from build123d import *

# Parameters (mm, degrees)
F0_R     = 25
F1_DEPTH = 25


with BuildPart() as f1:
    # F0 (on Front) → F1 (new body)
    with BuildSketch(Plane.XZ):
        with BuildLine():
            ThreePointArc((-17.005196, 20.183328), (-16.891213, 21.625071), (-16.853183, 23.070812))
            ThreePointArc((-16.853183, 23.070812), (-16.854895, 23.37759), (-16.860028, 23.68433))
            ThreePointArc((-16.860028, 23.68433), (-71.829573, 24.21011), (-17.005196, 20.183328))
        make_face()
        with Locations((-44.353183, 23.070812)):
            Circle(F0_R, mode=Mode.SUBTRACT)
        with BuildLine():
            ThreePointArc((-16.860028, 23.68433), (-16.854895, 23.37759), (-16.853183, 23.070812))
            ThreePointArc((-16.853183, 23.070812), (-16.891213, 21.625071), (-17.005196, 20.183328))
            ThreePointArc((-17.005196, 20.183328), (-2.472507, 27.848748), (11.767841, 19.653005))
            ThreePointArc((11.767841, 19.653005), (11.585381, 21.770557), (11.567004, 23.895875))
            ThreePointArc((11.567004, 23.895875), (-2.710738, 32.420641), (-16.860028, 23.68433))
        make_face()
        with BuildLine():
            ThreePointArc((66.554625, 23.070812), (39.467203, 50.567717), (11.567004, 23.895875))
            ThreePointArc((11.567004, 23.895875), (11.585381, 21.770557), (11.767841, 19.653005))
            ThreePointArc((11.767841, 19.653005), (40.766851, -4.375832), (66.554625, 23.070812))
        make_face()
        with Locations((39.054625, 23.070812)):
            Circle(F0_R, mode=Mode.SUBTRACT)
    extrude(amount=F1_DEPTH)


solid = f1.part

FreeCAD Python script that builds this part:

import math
import FreeCAD as App
import Part
import Sketcher

V = App.Vector
Q = App.Units.Quantity

doc = App.newDocument("Part")
params = doc.addObject("Spreadsheet::Sheet", "Params")
for row, (alias, value) in enumerate([
    ("sketch1_diameter", "50 mm"),
    ("sketch1_radius", "27.5 mm"),
    ("pad1_length", "25 mm"),
], start=1):
    params.set(f"A{row}", alias)
    params.set(f"B{row}", "=" + value)
    params.setAlias(f"B{row}", alias)

body = doc.addObject("PartDesign::Body", "Body")

# Sketch on XZ plane
sketch1 = body.newObject("Sketcher::SketchObject", "Sketch")
sketch1.AttachmentSupport = (doc.getObject("XZ_Plane"), [""])
sketch1.MapMode = "FlatFace"
sketch1.addGeometry([
    Part.ArcOfCircle(Part.Circle(V(-44.353183, 23.070815, 0), V(0, 0, 1), 27.5), math.radians(1.278355), math.radians(353.972861)),  # 0
    Part.ArcOfCircle(Part.Circle(V(-2.786101, 10.834483, 0), V(0, 0, 1), 17.017155), math.radians(31.212504), math.radians(146.675669)),  # 1
    Part.ArcOfCircle(Part.Circle(V(39.054625, 23.070812, 0), V(0, 0, 1), 27.5), math.radians(-172.860596), math.radians(0)),  # 2
    Part.ArcOfCircle(Part.Circle(V(39.054625, 23.070812, 0), V(0, 0, 1), 27.5), math.radians(0.000001), math.radians(178.280737)),  # 3
    Part.ArcOfCircle(Part.Circle(V(-2.591527, 16.401349, 0), V(0, 0, 1), 16.019736), math.radians(27.893582), math.radians(152.959156)),  # 4
    Part.Circle(V(-44.353183, 23.070812, 0), V(0, 0, 1), 25),  # 5
    Part.Circle(V(39.054625, 23.070812, 0), V(0, 0, 1), 25),  # 6
], False)
sketch1.addConstraint([
    Sketcher.Constraint("Coincident", 0, 2, 1, 2),
    Sketcher.Constraint("Coincident", 1, 1, 2, 1),
    Sketcher.Constraint("Tangent", 2, 2, 3, 1),
    Sketcher.Constraint("Coincident", 3, 2, 4, 1),
    Sketcher.Constraint("Coincident", 4, 2, 0, 1),
    Sketcher.Constraint("Coincident", 5, 3, 0, 3),
    Sketcher.Constraint("Coincident", 6, 3, 2, 3),
    Sketcher.Constraint("Equal", 0, 2),
    Sketcher.Constraint("Equal", 2, 3),
    Sketcher.Constraint("Equal", 5, 6),
    Sketcher.Constraint("Horizontal", 3, 3, 5, 3),
    Sketcher.Constraint("Horizontal", 6, 3, 2, 2),
    Sketcher.Constraint("Diameter", 5, Q("50 mm")),
    Sketcher.Constraint("Radius", 0, Q("27.5 mm")),
    Sketcher.Constraint("Radius", 1, Q("17.017155 mm")),
    Sketcher.Constraint("Radius", 4, Q("16.019736 mm")),
    Sketcher.Constraint("DistanceX", 1, 3, -1, 1, Q("2.786101 mm")),
    Sketcher.Constraint("DistanceX", 4, 2, 4, 3, Q("14.268501 mm")),
    Sketcher.Constraint("DistanceY", -1, 1, 3, 3, Q("23.070812 mm")),
    Sketcher.Constraint("DistanceY", -1, 1, 4, 3, Q("16.401349 mm")),
    Sketcher.Constraint("DistanceY", -1, 1, 0, 2, Q("20.183328 mm")),
    Sketcher.Constraint("DistanceX", -1, 1, 1, 1, Q("11.767841 mm")),
    Sketcher.Constraint("DistanceX", 4, 2, -1, 1, Q("16.860028 mm")),
])
sketch1.setExpression("Constraints[12]", "Params.sketch1_diameter")
sketch1.setExpression("Constraints[13]", "Params.sketch1_radius")
pad1 = body.newObject("PartDesign::Pad", "Pad")
pad1.Profile = sketch1
pad1.setExpression("Length", "Params.pad1_length")

doc.recompute()
